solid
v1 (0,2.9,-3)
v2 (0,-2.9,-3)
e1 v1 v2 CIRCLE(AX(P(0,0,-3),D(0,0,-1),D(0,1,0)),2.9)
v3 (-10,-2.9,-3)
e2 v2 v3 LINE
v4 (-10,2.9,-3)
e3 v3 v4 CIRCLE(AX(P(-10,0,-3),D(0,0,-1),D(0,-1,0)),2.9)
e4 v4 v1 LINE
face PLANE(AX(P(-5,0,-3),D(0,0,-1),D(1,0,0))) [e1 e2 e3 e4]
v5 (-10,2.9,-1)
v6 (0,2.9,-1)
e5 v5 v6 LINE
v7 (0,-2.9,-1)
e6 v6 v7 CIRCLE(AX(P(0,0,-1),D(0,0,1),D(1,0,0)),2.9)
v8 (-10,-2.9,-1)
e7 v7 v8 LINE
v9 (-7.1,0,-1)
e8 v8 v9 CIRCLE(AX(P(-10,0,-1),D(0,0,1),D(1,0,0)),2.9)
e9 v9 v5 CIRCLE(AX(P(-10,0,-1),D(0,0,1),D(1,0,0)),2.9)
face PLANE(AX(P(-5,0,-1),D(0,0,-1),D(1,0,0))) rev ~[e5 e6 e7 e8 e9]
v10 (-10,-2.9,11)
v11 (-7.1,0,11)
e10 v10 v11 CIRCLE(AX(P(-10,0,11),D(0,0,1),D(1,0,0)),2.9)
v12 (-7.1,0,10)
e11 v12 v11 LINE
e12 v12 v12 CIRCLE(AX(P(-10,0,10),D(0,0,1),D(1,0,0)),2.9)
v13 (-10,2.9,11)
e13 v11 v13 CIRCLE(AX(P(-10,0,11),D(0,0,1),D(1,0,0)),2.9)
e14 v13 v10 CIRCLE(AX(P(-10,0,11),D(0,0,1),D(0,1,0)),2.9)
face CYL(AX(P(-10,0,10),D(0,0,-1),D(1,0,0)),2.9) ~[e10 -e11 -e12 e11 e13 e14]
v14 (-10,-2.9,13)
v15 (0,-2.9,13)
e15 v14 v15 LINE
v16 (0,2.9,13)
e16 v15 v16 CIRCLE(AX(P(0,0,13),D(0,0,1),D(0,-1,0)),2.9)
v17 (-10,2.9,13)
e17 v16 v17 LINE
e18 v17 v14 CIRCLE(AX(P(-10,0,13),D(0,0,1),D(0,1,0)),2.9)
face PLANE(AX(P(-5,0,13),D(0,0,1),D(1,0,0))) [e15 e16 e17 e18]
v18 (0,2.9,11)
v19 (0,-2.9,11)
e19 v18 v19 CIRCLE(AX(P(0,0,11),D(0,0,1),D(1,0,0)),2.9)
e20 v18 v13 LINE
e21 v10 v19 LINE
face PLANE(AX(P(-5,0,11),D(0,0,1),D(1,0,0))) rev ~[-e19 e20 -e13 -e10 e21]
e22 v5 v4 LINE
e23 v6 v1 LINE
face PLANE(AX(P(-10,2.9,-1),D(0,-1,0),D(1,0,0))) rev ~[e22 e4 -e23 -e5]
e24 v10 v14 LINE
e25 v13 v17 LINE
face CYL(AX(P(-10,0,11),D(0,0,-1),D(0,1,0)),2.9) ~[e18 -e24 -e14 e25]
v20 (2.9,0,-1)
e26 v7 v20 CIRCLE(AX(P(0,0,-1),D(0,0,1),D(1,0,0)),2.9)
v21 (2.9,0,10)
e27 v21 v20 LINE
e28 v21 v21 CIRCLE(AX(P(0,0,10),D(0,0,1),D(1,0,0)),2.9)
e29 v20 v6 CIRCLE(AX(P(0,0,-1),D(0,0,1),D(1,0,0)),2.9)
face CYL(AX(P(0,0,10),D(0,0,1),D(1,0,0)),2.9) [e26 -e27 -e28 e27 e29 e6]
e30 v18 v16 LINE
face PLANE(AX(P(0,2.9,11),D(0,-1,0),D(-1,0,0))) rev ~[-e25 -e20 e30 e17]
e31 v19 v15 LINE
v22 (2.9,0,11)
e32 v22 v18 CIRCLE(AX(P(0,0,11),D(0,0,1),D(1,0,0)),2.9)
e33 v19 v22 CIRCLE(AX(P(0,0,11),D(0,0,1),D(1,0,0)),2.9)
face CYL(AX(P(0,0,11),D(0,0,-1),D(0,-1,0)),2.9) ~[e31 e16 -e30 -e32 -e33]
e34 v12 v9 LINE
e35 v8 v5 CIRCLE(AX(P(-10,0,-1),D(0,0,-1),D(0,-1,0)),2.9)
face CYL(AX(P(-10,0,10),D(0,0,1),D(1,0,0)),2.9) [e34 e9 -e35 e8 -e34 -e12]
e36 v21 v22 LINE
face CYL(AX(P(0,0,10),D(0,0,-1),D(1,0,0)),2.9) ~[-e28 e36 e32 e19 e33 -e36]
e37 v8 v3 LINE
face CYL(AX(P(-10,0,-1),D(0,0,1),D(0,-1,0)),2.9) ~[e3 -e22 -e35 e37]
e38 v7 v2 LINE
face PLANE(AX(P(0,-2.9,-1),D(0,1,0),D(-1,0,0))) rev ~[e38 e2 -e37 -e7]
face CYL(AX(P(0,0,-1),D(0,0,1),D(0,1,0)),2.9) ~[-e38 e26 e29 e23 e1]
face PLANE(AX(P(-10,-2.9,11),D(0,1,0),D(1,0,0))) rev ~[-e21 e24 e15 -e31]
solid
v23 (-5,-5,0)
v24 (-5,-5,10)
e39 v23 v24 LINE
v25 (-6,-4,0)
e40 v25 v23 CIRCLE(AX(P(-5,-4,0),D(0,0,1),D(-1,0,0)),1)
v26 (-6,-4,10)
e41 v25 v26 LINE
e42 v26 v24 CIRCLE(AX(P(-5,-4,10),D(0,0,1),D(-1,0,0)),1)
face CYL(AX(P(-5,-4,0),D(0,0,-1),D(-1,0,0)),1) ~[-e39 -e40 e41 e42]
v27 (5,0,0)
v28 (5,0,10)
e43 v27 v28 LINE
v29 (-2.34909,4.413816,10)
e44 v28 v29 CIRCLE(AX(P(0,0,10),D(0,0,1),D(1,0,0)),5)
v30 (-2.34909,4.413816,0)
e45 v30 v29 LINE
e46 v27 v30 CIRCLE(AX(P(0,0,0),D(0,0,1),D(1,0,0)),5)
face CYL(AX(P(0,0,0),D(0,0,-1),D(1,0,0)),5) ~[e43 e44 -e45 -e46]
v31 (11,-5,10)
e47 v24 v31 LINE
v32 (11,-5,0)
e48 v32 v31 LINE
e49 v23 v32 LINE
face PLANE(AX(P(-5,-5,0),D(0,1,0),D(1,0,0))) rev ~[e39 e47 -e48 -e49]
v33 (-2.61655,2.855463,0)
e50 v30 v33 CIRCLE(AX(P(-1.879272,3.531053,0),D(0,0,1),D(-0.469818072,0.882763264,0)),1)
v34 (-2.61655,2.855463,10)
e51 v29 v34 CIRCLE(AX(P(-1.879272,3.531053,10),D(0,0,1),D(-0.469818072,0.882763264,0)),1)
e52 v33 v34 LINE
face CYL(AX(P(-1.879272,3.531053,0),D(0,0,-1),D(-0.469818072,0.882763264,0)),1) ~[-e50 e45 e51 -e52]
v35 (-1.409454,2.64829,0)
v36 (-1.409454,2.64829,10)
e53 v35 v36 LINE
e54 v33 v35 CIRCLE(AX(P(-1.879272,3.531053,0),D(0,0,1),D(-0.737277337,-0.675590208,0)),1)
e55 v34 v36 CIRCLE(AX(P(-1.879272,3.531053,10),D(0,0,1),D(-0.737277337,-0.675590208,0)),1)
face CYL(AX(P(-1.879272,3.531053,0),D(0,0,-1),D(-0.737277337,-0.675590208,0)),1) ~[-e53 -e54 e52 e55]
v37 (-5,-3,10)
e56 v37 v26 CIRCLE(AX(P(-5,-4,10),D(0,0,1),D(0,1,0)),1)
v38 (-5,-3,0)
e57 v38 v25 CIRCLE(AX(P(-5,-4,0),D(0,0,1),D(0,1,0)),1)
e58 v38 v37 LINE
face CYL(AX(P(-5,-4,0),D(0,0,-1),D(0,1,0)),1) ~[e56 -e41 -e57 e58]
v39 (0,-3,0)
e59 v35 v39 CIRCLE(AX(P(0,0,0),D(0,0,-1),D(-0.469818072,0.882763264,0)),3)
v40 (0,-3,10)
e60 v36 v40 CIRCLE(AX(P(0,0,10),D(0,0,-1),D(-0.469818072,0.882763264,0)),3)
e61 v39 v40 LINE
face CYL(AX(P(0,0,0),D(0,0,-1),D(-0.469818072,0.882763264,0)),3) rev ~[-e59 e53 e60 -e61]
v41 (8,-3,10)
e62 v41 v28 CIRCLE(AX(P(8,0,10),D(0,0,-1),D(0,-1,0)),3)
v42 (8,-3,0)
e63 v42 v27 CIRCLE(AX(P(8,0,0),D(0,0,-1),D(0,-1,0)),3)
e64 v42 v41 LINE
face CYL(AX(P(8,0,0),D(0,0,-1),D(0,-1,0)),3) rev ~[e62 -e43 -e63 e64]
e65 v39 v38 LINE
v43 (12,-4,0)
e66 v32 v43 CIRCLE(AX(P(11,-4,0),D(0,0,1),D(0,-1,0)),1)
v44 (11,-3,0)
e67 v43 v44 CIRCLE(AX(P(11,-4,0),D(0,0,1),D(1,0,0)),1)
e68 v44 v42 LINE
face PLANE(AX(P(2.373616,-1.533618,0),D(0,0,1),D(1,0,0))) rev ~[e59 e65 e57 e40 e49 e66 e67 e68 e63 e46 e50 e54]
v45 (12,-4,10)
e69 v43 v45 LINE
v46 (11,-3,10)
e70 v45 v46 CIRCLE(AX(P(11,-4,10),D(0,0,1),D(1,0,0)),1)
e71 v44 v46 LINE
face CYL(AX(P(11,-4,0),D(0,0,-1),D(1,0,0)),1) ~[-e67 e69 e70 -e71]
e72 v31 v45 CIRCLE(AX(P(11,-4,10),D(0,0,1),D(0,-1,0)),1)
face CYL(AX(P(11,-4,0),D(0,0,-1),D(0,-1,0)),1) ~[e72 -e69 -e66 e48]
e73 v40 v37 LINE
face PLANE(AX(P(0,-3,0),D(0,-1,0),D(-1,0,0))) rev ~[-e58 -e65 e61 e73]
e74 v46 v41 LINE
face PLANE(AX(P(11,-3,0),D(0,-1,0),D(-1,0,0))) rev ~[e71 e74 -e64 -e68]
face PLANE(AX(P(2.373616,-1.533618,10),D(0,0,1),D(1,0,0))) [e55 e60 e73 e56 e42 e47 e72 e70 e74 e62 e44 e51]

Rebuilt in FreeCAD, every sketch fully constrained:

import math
import FreeCAD as App
import Part
import Sketcher

doc = App.newDocument("Part")
body = doc.addObject("PartDesign::Body", "Body")

sketch1 = doc.addObject("Sketcher::SketchObject", "Sketch")
body.addObject(sketch1)
sketch1.AttachmentSupport = (doc.XY_Plane, [""])
sketch1.MapMode = "FlatFace"
sketch1.addGeometry([
    Part.ArcOfCircle(Part.Circle(App.Vector(0, 0, 0), App.Vector(0, 0, 1), 3), math.radians(-90), math.radians(118.022488)),
    Part.LineSegment(App.Vector(0, -3, 0), App.Vector(-5, -3, 0)),
    Part.ArcOfCircle(Part.Circle(App.Vector(-5, -4, 0), App.Vector(0, 0, 1), 1), math.radians(90), math.radians(180)),
    Part.ArcOfCircle(Part.Circle(App.Vector(-5, -4, 0), App.Vector(0, 0, 1), 1), math.radians(180), math.radians(270)),
    Part.LineSegment(App.Vector(-5, -5, 0), App.Vector(11, -5, 0)),
    Part.ArcOfCircle(Part.Circle(App.Vector(11, -4, 0), App.Vector(0, 0, 1), 1), math.radians(-90), math.radians(0)),
    Part.ArcOfCircle(Part.Circle(App.Vector(11, -4, 0), App.Vector(0, 0, 1), 1), math.radians(0), math.radians(90)),
    Part.LineSegment(App.Vector(11, -3, 0), App.Vector(8, -3, 0)),
    Part.ArcOfCircle(Part.Circle(App.Vector(8, 0, 0), App.Vector(0, 0, 1), 3), math.radians(180), math.radians(270)),
    Part.ArcOfCircle(Part.Circle(App.Vector(0, 0, 0), App.Vector(0, 0, 1), 5), math.radians(0), math.radians(118.022488)),
    Part.ArcOfCircle(Part.Circle(App.Vector(-1.879272, 3.531053, 0), App.Vector(0, 0, 1), 1), math.radians(118.022488), math.radians(222.5)),
    Part.ArcOfCircle(Part.Circle(App.Vector(-1.879272, 3.531053, 0), App.Vector(0, 0, 1), 1), math.radians(-137.5), math.radians(-61.977512)),
], False)
sketch1.addConstraint([
    Sketcher.Constraint("Tangent", 0, 1, 1, 1),
    Sketcher.Constraint("Tangent", 1, 2, 2, 1),
    Sketcher.Constraint("Tangent", 2, 2, 3, 1),
    Sketcher.Constraint("Tangent", 3, 2, 4, 1),
    Sketcher.Constraint("Tangent", 4, 2, 5, 1),
    Sketcher.Constraint("Tangent", 5, 2, 6, 1),
    Sketcher.Constraint("Tangent", 6, 2, 7, 1),
    Sketcher.Constraint("Tangent", 7, 2, 8, 2),
    Sketcher.Constraint("Tangent", 8, 1, 9, 1),
    Sketcher.Constraint("Tangent", 9, 2, 10, 1),
    Sketcher.Constraint("Tangent", 10, 2, 11, 1),
    Sketcher.Constraint("Tangent", 11, 2, 0, 2),
    Sketcher.Constraint("Horizontal", 1),
    Sketcher.Constraint("Horizontal", 4),
    Sketcher.Constraint("Horizontal", 7),
    Sketcher.Constraint("Coincident", 0, 3, -1, 1),
    Sketcher.Constraint("Coincident", 9, 3, -1, 1),
    Sketcher.Constraint("Equal", 2, 3),
    Sketcher.Constraint("Equal", 3, 5),
    Sketcher.Constraint("Equal", 5, 6),
    Sketcher.Constraint("Equal", 0, 8),
    Sketcher.Constraint("Equal", 6, 10),
    Sketcher.Constraint("Equal", 10, 11),
    Sketcher.Constraint("Horizontal", 6, 3, 2, 2),
    Sketcher.Constraint("Horizontal", 2, 2, 5, 2),
    Sketcher.Constraint("Radius", 0, 3.0),
    Sketcher.Constraint("Radius", 2, 1.0),
    Sketcher.Constraint("DistanceX", 1, 2, 1, 1, 5.0),
    Sketcher.Constraint("DistanceX", 4, 1, 4, 2, 16.0),
    Sketcher.Constraint("DistanceX", 9, 2, -1, 1, 2.34909),
    Sketcher.Constraint("DistanceX", 10, 2, -1, 1, 2.61655),
])
pad1 = doc.addObject("PartDesign::Pad", "Pad")
body.addObject(pad1)
pad1.Profile = sketch1
pad1.Length = 10
body2 = doc.addObject("PartDesign::Body", "Body001")

sketch2 = doc.addObject("Sketcher::SketchObject", "Sketch001")
body2.addObject(sketch2)
sketch2.AttachmentSupport = (doc.getObject("XY_Plane001"), [""])
sketch2.MapMode = "FlatFace"
sketch2.AttachmentOffset = App.Placement(App.Vector(0, 0, 10), App.Rotation())
sketch2.addGeometry(Part.Circle(App.Vector(0, 0, 0), App.Vector(0, 0, 1), 2.9), False)
sketch2.addConstraint([
    Sketcher.Constraint("Coincident", 0, 3, -1, 1),
    Sketcher.Constraint("Diameter", 0, 5.8),
])
pad2 = doc.addObject("PartDesign::Pad", "Pad001")
body2.addObject(pad2)
pad2.Profile = sketch2
pad2.Type = "TwoLengths"
pad2.Length = 11
pad2.Length2 = 1
pad2.Reversed = True
body3 = doc.addObject("PartDesign::Body", "Body002")

sketch3 = doc.addObject("Sketcher::SketchObject", "Sketch002")
body3.addObject(sketch3)
sketch3.AttachmentSupport = (doc.getObject("XY_Plane002"), [""])
sketch3.MapMode = "FlatFace"
sketch3.AttachmentOffset = App.Placement(App.Vector(0, 0, 10), App.Rotation())
sketch3.addGeometry(Part.Circle(App.Vector(-10, 0, 0), App.Vector(0, 0, 1), 2.9), False)
sketch3.addConstraint([
    Sketcher.Constraint("PointOnObject", 0, 3, -1),
    Sketcher.Constraint("Diameter", 0, 5.8),
    Sketcher.Constraint("DistanceX", 0, 3, -1, 1, 10.0),
])
pad3 = doc.addObject("PartDesign::Pad", "Pad002")
body3.addObject(pad3)
pad3.Profile = sketch3
pad3.Type = "TwoLengths"
pad3.Length = 11
pad3.Length2 = 1
pad3.Reversed = True
body2.AllowCompound = True
doc.recompute()

boolean = doc.addObject("PartDesign::Boolean", "Boolean")
body2.addObject(boolean)
boolean.Type = "Fuse"
boolean.addObjects([body3])

sketch4 = doc.addObject("Sketcher::SketchObject", "Sketch003")
body2.addObject(sketch4)
sketch4.AttachmentSupport = (doc.getObject("XY_Plane001"), [""])
sketch4.MapMode = "FlatFace"
sketch4.AttachmentOffset = App.Placement(App.Vector(0, 0, -1), App.Rotation())
sketch4.addGeometry([
    Part.LineSegment(App.Vector(-10, 2.9, 0), App.Vector(0, 2.9, 0)),
    Part.ArcOfCircle(Part.Circle(App.Vector(0, 0, 0), App.Vector(0, 0, 1), 2.9), math.radians(-90), math.radians(90)),
    Part.LineSegment(App.Vector(0, -2.9, 0), App.Vector(-10, -2.9, 0)),
    Part.ArcOfCircle(Part.Circle(App.Vector(-10, 0, 0), App.Vector(0, 0, 1), 2.9), math.radians(90), math.radians(270)),
], False)
sketch4.addConstraint([
    Sketcher.Constraint("Tangent", 0, 2, 1, 2),
    Sketcher.Constraint("Tangent", 1, 1, 2, 1),
    Sketcher.Constraint("Tangent", 2, 2, 3, 2),
    Sketcher.Constraint("Tangent", 3, 1, 0, 1),
    Sketcher.Constraint("Horizontal", 0),
    Sketcher.Constraint("Horizontal", 2),
    Sketcher.Constraint("Coincident", 1, 3, -1, 1),
    Sketcher.Constraint("Radius", 1, 2.9),
    Sketcher.Constraint("DistanceX", 0, 1, 0, 2, 10.0),
])
pad4 = doc.addObject("PartDesign::Pad", "Pad003")
body2.addObject(pad4)
pad4.Profile = sketch4
pad4.Length = 2
pad4.Reversed = True

sketch5 = doc.addObject("Sketcher::SketchObject", "Sketch004")
body2.addObject(sketch5)
sketch5.AttachmentSupport = (doc.getObject("XY_Plane001"), [""])
sketch5.MapMode = "FlatFace"
sketch5.AttachmentOffset = App.Placement(App.Vector(0, 0, 11), App.Rotation())
sketch5.addGeometry([
    Part.LineSegment(App.Vector(-10, -2.9, 0), App.Vector(0, -2.9, 0)),
    Part.ArcOfCircle(Part.Circle(App.Vector(0, 0, 0), App.Vector(0, 0, 1), 2.9), math.radians(-90), math.radians(90)),
    Part.LineSegment(App.Vector(0, 2.9, 0), App.Vector(-10, 2.9, 0)),
    Part.ArcOfCircle(Part.Circle(App.Vector(-10, 0, 0), App.Vector(0, 0, 1), 2.9), math.radians(90), math.radians(270)),
], False)
sketch5.addConstraint([
    Sketcher.Constraint("Tangent", 0, 2, 1, 1),
    Sketcher.Constraint("Tangent", 1, 2, 2, 1),
    Sketcher.Constraint("Tangent", 2, 2, 3, 1),
    Sketcher.Constraint("Tangent", 3, 2, 0, 1),
    Sketcher.Constraint("Horizontal", 0),
    Sketcher.Constraint("Horizontal", 2),
    Sketcher.Constraint("Coincident", 1, 3, -1, 1),
    Sketcher.Constraint("Radius", 1, 2.9),
    Sketcher.Constraint("DistanceX", 0, 1, 0, 2, 10.0),
])
pad5 = doc.addObject("PartDesign::Pad", "Pad004")
body2.addObject(pad5)
pad5.Profile = sketch5
pad5.Length = 2

doc.recompute()
